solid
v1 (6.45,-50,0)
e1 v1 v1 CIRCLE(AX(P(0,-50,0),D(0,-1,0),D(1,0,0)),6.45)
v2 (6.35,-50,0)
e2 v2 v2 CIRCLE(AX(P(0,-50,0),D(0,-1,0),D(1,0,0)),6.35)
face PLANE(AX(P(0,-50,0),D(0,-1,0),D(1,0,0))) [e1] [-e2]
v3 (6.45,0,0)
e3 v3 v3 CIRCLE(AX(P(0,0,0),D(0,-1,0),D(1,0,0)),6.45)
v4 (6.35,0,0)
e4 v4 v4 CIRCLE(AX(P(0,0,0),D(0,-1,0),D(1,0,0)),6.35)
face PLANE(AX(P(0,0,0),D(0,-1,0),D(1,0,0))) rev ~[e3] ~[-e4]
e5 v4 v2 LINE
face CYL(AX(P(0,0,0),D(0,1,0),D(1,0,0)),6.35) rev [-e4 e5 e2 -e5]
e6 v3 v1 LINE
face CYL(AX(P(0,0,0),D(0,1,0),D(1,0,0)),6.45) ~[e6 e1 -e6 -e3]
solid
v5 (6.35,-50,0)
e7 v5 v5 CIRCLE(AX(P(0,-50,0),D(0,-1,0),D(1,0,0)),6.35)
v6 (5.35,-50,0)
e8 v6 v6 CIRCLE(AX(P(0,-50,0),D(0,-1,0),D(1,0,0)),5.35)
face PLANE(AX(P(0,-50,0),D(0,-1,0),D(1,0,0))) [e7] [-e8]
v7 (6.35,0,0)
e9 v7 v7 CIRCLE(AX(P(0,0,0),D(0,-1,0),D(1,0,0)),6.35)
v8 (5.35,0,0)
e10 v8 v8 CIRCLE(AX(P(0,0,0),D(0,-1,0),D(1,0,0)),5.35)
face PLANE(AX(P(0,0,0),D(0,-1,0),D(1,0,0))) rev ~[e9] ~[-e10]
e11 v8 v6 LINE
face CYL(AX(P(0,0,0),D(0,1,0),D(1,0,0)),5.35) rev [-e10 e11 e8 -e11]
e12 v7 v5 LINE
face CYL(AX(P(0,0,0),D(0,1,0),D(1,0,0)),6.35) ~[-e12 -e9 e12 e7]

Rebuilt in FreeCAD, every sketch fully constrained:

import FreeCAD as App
import Part
import Sketcher
Q = App.Units.Quantity

doc = App.newDocument("Part")
body = doc.addObject("PartDesign::Body", "Body")

sketch1 = doc.addObject("Sketcher::SketchObject", "Sketch")
body.addObject(sketch1)
sketch1.AttachmentSupport = (doc.XZ_Plane, [""])
sketch1.MapMode = "FlatFace"
sketch1.addGeometry(Part.Circle(App.Vector(0, 0, 0), App.Vector(0, 0, 1), 6), False)
sketch1.addGeometry(Part.Circle(App.Vector(0, 0, 0), App.Vector(0, 0, 1), 5), False)
sketch1.addConstraint(Sketcher.Constraint("Coincident", 0, 3, -1, 1))
sketch1.addConstraint(Sketcher.Constraint("Coincident", 1, 3, -1, 1))
sketch1.addConstraint(Sketcher.Constraint("Diameter", 0, Q("12.7 mm")))
sketch1.addConstraint(Sketcher.Constraint("Diameter", 1, Q("10.7 mm")))
pad1 = doc.addObject("PartDesign::Pad", "Pad")
body.addObject(pad1)
pad1.Profile = sketch1
pad1.Length = 50
body2 = doc.addObject("PartDesign::Body", "Body001")

sketch2 = doc.addObject("Sketcher::SketchObject", "Sketch001")
body2.addObject(sketch2)
sketch2.AttachmentSupport = (doc.getObject("XZ_Plane001"), [""])
sketch2.MapMode = "FlatFace"
sketch2.addGeometry(Part.Circle(App.Vector(0, 0, 0), App.Vector(0, 0, 1), 6), False)
sketch2.addGeometry(Part.Circle(App.Vector(0, 0, 0), App.Vector(0, 0, 1), 6), False)
sketch2.addConstraint(Sketcher.Constraint("Coincident", 0, 3, -1, 1))
sketch2.addConstraint(Sketcher.Constraint("Coincident", 1, 3, -1, 1))
sketch2.addConstraint(Sketcher.Constraint("Diameter", 0, Q("12.9 mm")))
sketch2.addConstraint(Sketcher.Constraint("Diameter", 1, Q("12.7 mm")))
pad2 = doc.addObject("PartDesign::Pad", "Pad001")
body2.addObject(pad2)
pad2.Profile = sketch2
pad2.Length = 50

doc.recompute()
